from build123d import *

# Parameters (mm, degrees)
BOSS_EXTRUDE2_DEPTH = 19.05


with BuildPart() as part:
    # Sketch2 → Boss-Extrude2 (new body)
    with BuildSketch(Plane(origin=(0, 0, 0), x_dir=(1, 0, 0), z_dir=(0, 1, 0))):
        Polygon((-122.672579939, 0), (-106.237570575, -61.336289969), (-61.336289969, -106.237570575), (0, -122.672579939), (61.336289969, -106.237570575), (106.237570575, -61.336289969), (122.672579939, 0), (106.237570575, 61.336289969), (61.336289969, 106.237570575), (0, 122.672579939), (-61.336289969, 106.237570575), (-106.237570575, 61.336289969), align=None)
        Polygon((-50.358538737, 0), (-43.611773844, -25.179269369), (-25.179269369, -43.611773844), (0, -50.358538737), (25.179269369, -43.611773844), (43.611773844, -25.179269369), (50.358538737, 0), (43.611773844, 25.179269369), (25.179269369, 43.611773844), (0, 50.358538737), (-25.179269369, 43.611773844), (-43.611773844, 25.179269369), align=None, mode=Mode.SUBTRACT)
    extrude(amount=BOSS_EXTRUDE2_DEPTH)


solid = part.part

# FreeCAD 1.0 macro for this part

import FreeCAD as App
import Part
import Sketcher
Q = App.Units.Quantity


def add_polygon(sketch, points):
    """Adds a closed chain of lines whose ends are joined by coincident constraints."""
    first, n = sketch.GeometryCount, len(points)
    for a, b in zip(points, points[1:] + points[:1]):
        sketch.addGeometry(Part.LineSegment(App.Vector(*a, 0), App.Vector(*b, 0)), False)
    for i in range(n):
        sketch.addConstraint(Sketcher.Constraint("Coincident", first + i, 2, first + (i + 1) % n, 1))

doc = App.newDocument("Part")
params = doc.addObject("Spreadsheet::Sheet", "Params")
for row, (alias, value) in enumerate([
    ("sketch1_length", "2.5 in"),
    ("pad1_length", "0.75 in"),
], start=1):
    params.set(f"A{row}", alias)
    params.set(f"B{row}", "=" + value)
    params.setAlias(f"B{row}", alias)

body = doc.addObject("PartDesign::Body", "Body")

# Sketch on XZ plane
sketch1 = body.newObject("Sketcher::SketchObject", "Sketch")
sketch1.AttachmentSupport = (doc.getObject("XZ_Plane"), [""])
sketch1.MapMode = "FlatFace"
add_polygon(sketch1, [(-123, 0), (-106, 61), (-61, 106), (0, 123), (61, 106), (106, 61), (123, 0), (106, -61), (61, -106), (0, -123), (-61, -106), (-106, -61)])  # lines 0-11
add_polygon(sketch1, [(-44, 25), (-50, 0), (-44, -25), (-25, -44), (0, -50), (25, -44), (44, -25), (50, 0), (44, 25), (25, 44), (0, 50), (-25, 44)])  # lines 12-23
sketch1.addConstraint(Sketcher.Constraint("Symmetric", 0, 2, 6, 2, -1, 1))
sketch1.addConstraint(Sketcher.Constraint("Symmetric", 1, 2, 7, 2, -1, 1))
sketch1.addConstraint(Sketcher.Constraint("Symmetric", 2, 2, 8, 2, -1, 1))
sketch1.addConstraint(Sketcher.Constraint("Symmetric", 3, 2, 9, 2, -1, 1))
sketch1.addConstraint(Sketcher.Constraint("Symmetric", 4, 2, 10, 2, -1, 1))
sketch1.addConstraint(Sketcher.Constraint("Symmetric", 5, 2, 11, 2, -1, 1))
sketch1.addConstraint(Sketcher.Constraint("Symmetric", 12, 2, 18, 2, -1, 1))
sketch1.addConstraint(Sketcher.Constraint("Symmetric", 13, 2, 19, 2, -1, 1))
sketch1.addConstraint(Sketcher.Constraint("Symmetric", 14, 2, 20, 2, -1, 1))
sketch1.addConstraint(Sketcher.Constraint("Symmetric", 15, 2, 21, 2, -1, 1))
sketch1.addConstraint(Sketcher.Constraint("Symmetric", 16, 2, 22, 2, -1, 1))
sketch1.addConstraint(Sketcher.Constraint("Symmetric", 17, 2, 23, 2, -1, 1))
sketch1.addConstraint(Sketcher.Constraint("Symmetric", 1, 2, 3, 2, -2))
sketch1.addConstraint(Sketcher.Constraint("Symmetric", 0, 2, 4, 2, -2))
sketch1.addConstraint(Sketcher.Constraint("Symmetric", 14, 2, 16, 2, -2))
sketch1.addConstraint(Sketcher.Constraint("Symmetric", 13, 2, 17, 2, -2))
sketch1.addConstraint(Sketcher.Constraint("PointOnObject", 2, 2, -2))
sketch1.addConstraint(Sketcher.Constraint("PointOnObject", 5, 2, -1))
sketch1.addConstraint(Sketcher.Constraint("PointOnObject", 12, 2, -1))
sketch1.addConstraint(Sketcher.Constraint("PointOnObject", 15, 2, -2))
sketch1.addConstraint(Sketcher.Constraint("Perpendicular", 0, 3))
sketch1.addConstraint(Sketcher.Constraint("Perpendicular", 1, 4))
sketch1.addConstraint(Sketcher.Constraint("Perpendicular", 9, 12))
sketch1.addConstraint(Sketcher.Constraint("Parallel", 10, 14))
sketch1.addConstraint(Sketcher.Constraint("Perpendicular", 12, 15))
sketch1.addConstraint(Sketcher.Constraint("Equal", 0, 1))
sketch1.addConstraint(Sketcher.Constraint("Equal", 1, 2))
sketch1.addConstraint(Sketcher.Constraint("Equal", 13, 14))
sketch1.addConstraint(Sketcher.Constraint("Equal", 14, 15))
sketch1.addConstraint(Sketcher.Constraint("Angle", 0, Q("75 deg")))
sketch1.addConstraint(Sketcher.Constraint("Distance", 0, Q("2.5 in")))
sketch1.addConstraint(Sketcher.Constraint("DistanceY", 9, 2, 13, 2, Q("81.058301 mm")))
sketch1.setExpression("Constraints[54]", "Params.sketch1_length")
pad1 = body.newObject("PartDesign::Pad", "Pad")
pad1.Profile = sketch1
pad1.setExpression("Length", "Params.pad1_length")
pad1.Reversed = True

doc.recompute()
